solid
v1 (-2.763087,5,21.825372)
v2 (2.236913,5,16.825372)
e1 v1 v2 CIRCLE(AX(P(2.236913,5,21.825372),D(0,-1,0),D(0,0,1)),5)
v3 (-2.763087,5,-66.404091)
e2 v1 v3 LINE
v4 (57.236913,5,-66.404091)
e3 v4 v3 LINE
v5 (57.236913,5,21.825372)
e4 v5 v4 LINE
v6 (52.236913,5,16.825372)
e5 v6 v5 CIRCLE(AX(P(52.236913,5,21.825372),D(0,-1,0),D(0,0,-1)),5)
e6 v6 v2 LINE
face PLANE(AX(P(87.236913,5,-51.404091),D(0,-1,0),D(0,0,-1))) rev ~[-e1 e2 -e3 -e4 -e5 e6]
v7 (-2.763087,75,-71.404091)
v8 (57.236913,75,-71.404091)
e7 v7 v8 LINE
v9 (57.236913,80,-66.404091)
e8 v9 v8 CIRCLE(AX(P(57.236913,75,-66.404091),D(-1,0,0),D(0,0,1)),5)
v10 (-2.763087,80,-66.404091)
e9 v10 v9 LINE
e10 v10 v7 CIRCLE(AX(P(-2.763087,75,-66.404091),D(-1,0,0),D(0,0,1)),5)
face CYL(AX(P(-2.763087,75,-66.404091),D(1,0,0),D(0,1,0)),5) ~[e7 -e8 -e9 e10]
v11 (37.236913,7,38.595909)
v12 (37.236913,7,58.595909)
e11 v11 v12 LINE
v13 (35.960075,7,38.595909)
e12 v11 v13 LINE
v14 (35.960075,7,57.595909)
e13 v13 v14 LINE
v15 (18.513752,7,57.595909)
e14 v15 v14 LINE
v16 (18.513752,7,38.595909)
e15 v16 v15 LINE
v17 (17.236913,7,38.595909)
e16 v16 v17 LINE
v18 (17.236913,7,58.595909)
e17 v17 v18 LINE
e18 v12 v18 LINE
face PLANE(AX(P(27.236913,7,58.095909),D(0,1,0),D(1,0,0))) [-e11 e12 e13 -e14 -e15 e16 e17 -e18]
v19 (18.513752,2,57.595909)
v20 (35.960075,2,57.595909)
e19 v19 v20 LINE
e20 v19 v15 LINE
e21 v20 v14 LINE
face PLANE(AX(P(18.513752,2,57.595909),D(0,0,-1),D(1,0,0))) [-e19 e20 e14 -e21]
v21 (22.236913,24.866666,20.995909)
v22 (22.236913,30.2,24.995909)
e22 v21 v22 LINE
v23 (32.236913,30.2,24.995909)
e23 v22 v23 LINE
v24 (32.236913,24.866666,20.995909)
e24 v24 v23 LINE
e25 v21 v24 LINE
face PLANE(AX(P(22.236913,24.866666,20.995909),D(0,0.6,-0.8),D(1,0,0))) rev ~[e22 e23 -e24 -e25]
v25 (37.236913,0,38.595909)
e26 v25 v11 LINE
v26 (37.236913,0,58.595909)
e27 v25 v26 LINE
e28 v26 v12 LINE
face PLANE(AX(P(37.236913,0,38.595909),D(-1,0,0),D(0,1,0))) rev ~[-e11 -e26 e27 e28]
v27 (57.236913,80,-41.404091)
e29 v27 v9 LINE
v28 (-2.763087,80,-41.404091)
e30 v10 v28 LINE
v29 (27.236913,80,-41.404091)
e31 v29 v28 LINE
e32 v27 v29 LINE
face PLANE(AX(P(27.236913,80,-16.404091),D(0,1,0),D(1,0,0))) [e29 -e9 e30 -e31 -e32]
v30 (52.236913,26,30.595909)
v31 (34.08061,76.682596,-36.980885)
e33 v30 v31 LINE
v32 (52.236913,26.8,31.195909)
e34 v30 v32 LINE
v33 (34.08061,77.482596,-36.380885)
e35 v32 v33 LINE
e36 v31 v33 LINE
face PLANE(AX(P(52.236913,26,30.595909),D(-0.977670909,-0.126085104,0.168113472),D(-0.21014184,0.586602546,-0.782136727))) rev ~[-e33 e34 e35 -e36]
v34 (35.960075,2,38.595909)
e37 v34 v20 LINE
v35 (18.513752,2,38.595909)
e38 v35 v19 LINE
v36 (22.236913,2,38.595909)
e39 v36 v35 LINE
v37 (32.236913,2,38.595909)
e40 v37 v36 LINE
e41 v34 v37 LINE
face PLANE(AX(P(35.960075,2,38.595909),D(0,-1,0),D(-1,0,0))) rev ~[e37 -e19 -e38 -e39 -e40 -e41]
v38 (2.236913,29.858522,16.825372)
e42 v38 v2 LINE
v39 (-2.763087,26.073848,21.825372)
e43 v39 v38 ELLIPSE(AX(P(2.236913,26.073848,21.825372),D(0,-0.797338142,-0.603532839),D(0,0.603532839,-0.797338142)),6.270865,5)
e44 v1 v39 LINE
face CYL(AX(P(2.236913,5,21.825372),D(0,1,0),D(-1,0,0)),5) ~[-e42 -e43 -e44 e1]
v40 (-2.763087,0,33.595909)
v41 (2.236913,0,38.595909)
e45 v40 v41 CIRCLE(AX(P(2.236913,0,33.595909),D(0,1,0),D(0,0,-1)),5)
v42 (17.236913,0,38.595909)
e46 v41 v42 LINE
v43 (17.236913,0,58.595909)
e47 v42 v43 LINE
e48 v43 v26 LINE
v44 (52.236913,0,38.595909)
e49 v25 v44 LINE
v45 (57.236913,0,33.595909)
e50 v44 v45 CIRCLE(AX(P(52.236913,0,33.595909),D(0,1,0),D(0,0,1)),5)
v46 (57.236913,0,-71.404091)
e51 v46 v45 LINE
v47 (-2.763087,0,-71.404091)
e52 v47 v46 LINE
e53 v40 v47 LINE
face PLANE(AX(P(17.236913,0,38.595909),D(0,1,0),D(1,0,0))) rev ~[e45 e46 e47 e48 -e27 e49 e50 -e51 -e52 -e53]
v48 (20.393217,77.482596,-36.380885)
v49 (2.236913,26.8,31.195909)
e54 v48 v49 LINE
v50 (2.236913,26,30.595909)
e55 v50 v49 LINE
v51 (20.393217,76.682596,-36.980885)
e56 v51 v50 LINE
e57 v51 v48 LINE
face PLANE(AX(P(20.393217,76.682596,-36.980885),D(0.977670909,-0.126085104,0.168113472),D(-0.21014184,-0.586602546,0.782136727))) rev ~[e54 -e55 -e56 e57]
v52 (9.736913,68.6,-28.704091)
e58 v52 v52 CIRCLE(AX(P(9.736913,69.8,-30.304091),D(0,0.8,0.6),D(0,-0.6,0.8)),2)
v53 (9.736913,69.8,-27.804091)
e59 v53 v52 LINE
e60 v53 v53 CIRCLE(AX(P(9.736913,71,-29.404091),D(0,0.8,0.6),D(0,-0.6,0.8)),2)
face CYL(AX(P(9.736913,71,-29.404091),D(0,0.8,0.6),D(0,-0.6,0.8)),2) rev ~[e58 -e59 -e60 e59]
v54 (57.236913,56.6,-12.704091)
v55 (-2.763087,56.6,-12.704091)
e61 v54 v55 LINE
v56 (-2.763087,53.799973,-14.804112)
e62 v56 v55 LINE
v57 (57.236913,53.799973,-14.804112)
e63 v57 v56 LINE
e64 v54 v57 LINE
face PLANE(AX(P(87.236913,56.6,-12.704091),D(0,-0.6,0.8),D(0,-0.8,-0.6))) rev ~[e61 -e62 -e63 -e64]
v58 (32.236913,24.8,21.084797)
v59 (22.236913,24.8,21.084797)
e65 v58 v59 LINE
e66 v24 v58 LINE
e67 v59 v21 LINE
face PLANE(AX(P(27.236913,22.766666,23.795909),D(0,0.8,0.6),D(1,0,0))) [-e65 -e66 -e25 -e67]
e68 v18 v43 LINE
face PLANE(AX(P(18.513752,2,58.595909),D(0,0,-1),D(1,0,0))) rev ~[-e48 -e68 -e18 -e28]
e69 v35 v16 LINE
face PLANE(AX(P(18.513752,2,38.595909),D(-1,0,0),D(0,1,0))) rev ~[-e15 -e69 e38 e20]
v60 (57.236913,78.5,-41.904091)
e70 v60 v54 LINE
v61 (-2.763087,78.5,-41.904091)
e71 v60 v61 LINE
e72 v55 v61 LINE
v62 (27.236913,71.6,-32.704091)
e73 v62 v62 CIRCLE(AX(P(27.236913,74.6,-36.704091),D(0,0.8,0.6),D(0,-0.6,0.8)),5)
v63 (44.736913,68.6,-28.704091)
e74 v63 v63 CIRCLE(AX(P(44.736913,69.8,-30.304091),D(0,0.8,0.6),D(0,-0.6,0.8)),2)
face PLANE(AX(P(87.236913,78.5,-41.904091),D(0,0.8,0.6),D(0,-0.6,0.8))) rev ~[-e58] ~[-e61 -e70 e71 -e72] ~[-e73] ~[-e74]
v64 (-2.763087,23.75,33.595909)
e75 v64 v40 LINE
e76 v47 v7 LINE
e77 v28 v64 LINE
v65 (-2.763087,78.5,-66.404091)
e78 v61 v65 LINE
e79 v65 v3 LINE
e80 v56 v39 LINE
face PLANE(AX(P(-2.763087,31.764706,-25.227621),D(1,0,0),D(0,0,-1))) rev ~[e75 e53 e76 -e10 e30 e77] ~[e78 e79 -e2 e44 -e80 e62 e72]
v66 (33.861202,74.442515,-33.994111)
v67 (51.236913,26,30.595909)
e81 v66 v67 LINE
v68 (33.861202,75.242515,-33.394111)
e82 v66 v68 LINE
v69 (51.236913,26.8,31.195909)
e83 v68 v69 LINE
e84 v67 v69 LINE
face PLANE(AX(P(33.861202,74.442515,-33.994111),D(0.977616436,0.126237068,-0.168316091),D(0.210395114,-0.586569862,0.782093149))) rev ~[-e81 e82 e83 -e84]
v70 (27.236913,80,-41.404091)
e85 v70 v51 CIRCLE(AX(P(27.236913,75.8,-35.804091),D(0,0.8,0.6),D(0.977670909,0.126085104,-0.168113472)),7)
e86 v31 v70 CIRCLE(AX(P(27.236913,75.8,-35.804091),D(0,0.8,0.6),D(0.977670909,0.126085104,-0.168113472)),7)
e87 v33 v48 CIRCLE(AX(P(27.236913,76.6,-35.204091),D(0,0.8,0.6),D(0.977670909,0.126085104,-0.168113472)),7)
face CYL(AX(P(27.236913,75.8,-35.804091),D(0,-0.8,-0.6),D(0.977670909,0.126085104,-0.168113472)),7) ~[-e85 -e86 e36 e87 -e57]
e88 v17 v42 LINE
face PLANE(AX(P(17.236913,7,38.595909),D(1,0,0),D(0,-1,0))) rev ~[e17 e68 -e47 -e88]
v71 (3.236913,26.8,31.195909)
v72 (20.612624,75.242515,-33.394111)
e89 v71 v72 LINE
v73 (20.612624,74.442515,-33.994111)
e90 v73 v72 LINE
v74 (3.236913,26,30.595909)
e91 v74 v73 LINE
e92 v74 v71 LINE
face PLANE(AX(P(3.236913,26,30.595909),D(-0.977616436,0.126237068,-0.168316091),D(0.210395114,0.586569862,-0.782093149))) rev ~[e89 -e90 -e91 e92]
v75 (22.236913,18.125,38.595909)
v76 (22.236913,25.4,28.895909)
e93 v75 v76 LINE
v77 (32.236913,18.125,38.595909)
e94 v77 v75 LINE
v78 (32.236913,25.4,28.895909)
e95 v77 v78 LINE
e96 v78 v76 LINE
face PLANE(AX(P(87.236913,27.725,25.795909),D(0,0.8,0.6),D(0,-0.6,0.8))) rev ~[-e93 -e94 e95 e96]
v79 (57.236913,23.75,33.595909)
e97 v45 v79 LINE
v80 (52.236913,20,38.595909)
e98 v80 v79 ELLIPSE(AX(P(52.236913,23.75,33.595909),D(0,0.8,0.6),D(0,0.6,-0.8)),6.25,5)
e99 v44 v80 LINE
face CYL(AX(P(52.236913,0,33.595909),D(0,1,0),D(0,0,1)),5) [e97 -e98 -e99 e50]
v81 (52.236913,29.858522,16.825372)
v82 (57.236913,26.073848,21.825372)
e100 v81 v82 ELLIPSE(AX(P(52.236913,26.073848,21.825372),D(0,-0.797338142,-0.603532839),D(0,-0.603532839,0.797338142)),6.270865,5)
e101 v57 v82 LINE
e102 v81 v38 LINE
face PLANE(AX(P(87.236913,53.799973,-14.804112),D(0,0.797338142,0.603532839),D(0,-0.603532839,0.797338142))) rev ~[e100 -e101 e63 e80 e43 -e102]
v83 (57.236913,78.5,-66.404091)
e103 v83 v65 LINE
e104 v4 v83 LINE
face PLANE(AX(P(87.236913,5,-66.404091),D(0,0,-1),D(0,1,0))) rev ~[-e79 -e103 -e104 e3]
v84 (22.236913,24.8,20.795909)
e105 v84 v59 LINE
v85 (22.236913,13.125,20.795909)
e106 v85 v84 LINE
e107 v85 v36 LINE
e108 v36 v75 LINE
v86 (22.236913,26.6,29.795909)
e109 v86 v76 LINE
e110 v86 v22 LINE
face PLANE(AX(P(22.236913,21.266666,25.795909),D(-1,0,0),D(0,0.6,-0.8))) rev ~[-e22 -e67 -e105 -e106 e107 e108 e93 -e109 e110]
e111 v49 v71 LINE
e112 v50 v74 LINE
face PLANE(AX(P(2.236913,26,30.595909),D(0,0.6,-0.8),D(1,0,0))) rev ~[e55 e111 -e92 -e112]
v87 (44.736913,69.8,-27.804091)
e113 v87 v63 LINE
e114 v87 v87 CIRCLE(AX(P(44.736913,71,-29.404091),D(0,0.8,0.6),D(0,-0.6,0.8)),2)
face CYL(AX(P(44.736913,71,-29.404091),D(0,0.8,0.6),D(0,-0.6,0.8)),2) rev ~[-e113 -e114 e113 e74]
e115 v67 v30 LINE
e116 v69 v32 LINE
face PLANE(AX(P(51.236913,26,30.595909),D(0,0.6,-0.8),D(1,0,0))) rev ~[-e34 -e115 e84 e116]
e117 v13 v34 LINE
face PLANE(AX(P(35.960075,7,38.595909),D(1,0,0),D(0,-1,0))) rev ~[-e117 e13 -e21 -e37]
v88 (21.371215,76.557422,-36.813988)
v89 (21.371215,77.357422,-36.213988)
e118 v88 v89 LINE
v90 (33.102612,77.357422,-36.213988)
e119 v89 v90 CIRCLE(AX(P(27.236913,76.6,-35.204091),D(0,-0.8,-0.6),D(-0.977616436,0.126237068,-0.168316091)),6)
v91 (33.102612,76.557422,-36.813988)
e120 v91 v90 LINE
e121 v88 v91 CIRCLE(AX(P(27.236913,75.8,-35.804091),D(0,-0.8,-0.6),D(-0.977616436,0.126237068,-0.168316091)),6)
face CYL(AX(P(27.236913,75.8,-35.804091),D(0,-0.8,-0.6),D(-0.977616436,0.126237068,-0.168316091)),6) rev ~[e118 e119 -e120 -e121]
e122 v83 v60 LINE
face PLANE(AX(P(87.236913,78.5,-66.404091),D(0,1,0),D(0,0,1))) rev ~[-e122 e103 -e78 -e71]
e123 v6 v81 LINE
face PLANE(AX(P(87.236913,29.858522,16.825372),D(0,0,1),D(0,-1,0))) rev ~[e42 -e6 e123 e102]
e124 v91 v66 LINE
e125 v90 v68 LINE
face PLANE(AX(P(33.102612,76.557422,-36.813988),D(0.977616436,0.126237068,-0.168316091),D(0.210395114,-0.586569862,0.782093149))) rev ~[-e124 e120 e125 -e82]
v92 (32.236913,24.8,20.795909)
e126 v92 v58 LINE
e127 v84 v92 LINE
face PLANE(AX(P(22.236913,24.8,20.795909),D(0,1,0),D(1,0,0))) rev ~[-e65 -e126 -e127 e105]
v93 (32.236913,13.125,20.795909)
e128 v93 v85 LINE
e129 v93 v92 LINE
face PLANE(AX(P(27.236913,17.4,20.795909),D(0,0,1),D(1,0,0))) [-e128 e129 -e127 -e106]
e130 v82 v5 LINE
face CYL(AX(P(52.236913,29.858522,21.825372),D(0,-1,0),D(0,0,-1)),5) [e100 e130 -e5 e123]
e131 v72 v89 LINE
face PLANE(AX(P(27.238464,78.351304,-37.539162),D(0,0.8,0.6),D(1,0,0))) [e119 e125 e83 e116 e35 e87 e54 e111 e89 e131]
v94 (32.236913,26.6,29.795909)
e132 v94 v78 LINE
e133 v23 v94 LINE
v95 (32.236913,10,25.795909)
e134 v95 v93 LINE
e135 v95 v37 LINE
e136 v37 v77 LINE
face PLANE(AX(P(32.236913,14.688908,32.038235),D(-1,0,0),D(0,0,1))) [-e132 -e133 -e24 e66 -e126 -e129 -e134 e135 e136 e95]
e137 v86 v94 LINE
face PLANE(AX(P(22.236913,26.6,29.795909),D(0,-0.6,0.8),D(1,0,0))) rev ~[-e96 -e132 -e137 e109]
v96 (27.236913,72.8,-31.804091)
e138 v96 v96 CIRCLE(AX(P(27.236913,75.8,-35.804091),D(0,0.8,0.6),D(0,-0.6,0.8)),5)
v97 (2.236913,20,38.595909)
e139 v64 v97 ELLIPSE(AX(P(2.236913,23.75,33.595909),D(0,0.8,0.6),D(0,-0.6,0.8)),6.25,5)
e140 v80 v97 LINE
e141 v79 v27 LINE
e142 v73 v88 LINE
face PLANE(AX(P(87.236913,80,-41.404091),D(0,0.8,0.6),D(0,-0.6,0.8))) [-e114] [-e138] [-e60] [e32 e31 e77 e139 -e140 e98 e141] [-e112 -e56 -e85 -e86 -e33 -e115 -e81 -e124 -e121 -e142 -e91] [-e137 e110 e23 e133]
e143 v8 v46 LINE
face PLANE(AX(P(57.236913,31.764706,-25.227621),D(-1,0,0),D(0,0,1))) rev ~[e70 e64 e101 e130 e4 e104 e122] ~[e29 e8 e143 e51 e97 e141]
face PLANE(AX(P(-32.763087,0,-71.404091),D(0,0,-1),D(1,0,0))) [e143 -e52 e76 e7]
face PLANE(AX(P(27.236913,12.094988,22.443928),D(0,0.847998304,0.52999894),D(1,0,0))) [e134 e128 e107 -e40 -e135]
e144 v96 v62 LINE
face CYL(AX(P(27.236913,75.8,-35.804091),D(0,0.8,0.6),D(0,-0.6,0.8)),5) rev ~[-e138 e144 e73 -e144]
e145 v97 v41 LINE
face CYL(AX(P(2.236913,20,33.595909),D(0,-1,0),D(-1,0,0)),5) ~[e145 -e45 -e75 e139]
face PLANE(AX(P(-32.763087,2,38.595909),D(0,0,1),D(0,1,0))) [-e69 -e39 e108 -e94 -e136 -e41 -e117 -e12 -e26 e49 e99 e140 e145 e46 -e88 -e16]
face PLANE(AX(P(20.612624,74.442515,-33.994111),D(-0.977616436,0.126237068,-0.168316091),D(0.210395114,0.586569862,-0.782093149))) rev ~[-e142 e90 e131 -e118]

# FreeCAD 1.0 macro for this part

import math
import FreeCAD as App
import Part
import Sketcher

V = App.Vector
Q = App.Units.Quantity


def edges_at(feature, points):
    """Names of the edges that pass closest to the given points."""
    edges = feature.Shape.Edges
    near = lambda p: min(range(len(edges)), key=lambda i: edges[i].distToShape(Part.Vertex(*p))[0])
    return sorted({f"Edge{near(p) + 1}" for p in points})


def add_polygon(sketch, points):
    """Adds a closed chain of lines whose ends are joined by coincident constraints."""
    first, n = sketch.GeometryCount, len(points)
    for a, b in zip(points, points[1:] + points[:1]):
        sketch.addGeometry(Part.LineSegment(App.Vector(*a, 0), App.Vector(*b, 0)), False)
    for i in range(n):
        sketch.addConstraint(Sketcher.Constraint("Coincident", first + i, 2, first + (i + 1) % n, 1))

doc = App.newDocument("Part")
body = doc.addObject("PartDesign::Body", "Body")

sketch1 = doc.addObject("Sketcher::SketchObject", "Sketch")
body.addObject(sketch1)
sketch1.AttachmentSupport = (doc.XZ_Plane, [""])
sketch1.MapMode = "FlatFace"
add_polygon(sketch1, [(-33, -71), (-33, 39), (87, 39), (87, -71)])
sketch1.addConstraint([
    Sketcher.Constraint("Vertical", 0),
    Sketcher.Constraint("Horizontal", 1),
    Sketcher.Constraint("Vertical", 2),
    Sketcher.Constraint("Horizontal", 3),
    Sketcher.Constraint("DistanceX", 1, 1, 1, 2, Q("120 mm")),
    Sketcher.Constraint("DistanceY", 0, 1, 0, 2, Q("110 mm")),
    Sketcher.Constraint("DistanceY", -1, 1, 0, 2, Q("38.595909 mm")),
    Sketcher.Constraint("DistanceX", 0, 2, -1, 1, Q("32.763087 mm")),
])
pad1 = doc.addObject("PartDesign::Pad", "Pad")
body.addObject(pad1)
pad1.Profile = sketch1
pad1.Length = 80
pad1.Reversed = True

sketch2 = doc.addObject("Sketcher::SketchObject", "Sketch001")
body.addObject(sketch2)
sketch2.AttachmentSupport = (doc.YZ_Plane, [""])
sketch2.MapMode = "FlatFace"
sketch2.AttachmentOffset = App.Placement(V(0, 0, 87.236913), App.Rotation())
add_polygon(sketch2, [(80, -41), (80, 39), (20, 39)])
sketch2.addConstraint([
    Sketcher.Constraint("Vertical", 0),
    Sketcher.Constraint("Horizontal", 1),
    Sketcher.Constraint("DistanceX", 1, 2, 1, 1, Q("60 mm")),
    Sketcher.Constraint("DistanceY", 0, 1, 0, 2, Q("80 mm")),
    Sketcher.Constraint("DistanceX", -1, 1, 0, 2, Q("80 mm")),
    Sketcher.Constraint("DistanceY", -1, 1, 0, 2, Q("38.595909 mm")),
])
pocket1 = doc.addObject("PartDesign::Pocket", "Pocket")
body.addObject(pocket1)
pocket1.Profile = sketch2
pocket1.Type = "ThroughAll"

sketch3 = doc.addObject("Sketcher::SketchObject", "Sketch002")
body.addObject(sketch3)
sketch3.Placement = App.Placement(V(0, 31.326036, 23.494527), App.Rotation(V(1, 0, 0), V(0, 0.6, -0.8), V(0, 0.8, 0.6), "ZXY"))
sketch3.addGeometry(Part.Circle(V(9.7, 66.1, 0), V(0, 0, 1), 2), False)
sketch3.addGeometry(Part.ArcOfCircle(Part.Circle(V(27.2, 74.1, 0), V(0, 0, 1), 4.5), math.radians(0), math.radians(90)), False)
sketch3.addGeometry(Part.ArcOfCircle(Part.Circle(V(27.2, 74.1, 0), V(0, 0, 1), 4.5), math.radians(90), math.radians(270)), False)
sketch3.addGeometry(Part.ArcOfCircle(Part.Circle(V(27.2, 74.1, 0), V(0, 0, 1), 4.5), math.radians(-90), math.radians(0)), False)
sketch3.addGeometry(Part.Circle(V(44.7, 66.1, 0), V(0, 0, 1), 2), False)
add_polygon(sketch3, [(22.2, -2.9), (22.2, -7.9), (32.2, -7.9), (32.2, -2.9)])
sketch3.addConstraint([
    Sketcher.Constraint("Tangent", 1, 2, 2, 1),
    Sketcher.Constraint("Tangent", 2, 2, 3, 1),
    Sketcher.Constraint("Tangent", 3, 2, 1, 1),
    Sketcher.Constraint("Vertical", 5),
    Sketcher.Constraint("Horizontal", 6),
    Sketcher.Constraint("Vertical", 7),
    Sketcher.Constraint("Horizontal", 8),
    Sketcher.Constraint("Equal", 0, 4),
    Sketcher.Constraint("Horizontal", 0, 3, 4, 3),
    Sketcher.Constraint("Horizontal", 2, 3, 3, 2),
    Sketcher.Constraint("Vertical", 3, 3, 1, 2),
    Sketcher.Constraint("Vertical", 1, 2, 2, 2),
    Sketcher.Constraint("Diameter", 0, Q("4 mm")),
    Sketcher.Constraint("Radius", 1, Q("4.5 mm")),
    Sketcher.Constraint("DistanceX", 6, 1, 6, 2, Q("10 mm")),
    Sketcher.Constraint("DistanceY", 5, 2, 5, 1, Q("5 mm")),
    Sketcher.Constraint("DistanceY", 0, 3, 1, 3, Q("8 mm")),
    Sketcher.Constraint("DistanceX", 0, 3, 4, 3, Q("35 mm")),
    Sketcher.Constraint("DistanceY", 5, 2, 0, 3, Q("74 mm")),
    Sketcher.Constraint("DistanceX", 5, 2, 2, 2, Q("5 mm")),
    Sketcher.Constraint("DistanceX", 0, 3, 1, 3, Q("17.5 mm")),
    Sketcher.Constraint("DistanceX", -1, 1, 0, 3, Q("9.736913 mm")),
    Sketcher.Constraint("DistanceY", -1, 1, 0, 3, Q("66.123273 mm")),
])
pocket2 = doc.addObject("PartDesign::Pocket", "Pocket001")
body.addObject(pocket2)
pocket2.Profile = sketch3
pocket2.Length = 14

sketch4 = doc.addObject("Sketcher::SketchObject", "Sketch003")
body.addObject(sketch4)
sketch4.AttachmentSupport = (doc.YZ_Plane, [""])
sketch4.MapMode = "FlatFace"
sketch4.AttachmentOffset = App.Placement(V(0, 0, 87.236913), App.Rotation())
add_polygon(sketch4, [(78, -42), (57, -13), (5, -51), (5, -66), (78, -66)])
sketch4.addConstraint([
    Sketcher.Constraint("Vertical", 2),
    Sketcher.Constraint("Horizontal", 3),
    Sketcher.Constraint("Vertical", 4),
    Sketcher.Constraint("Perpendicular", 0, 1),
    Sketcher.Constraint("DistanceY", 2, 2, 2, 1, Q("15 mm")),
    Sketcher.Constraint("DistanceX", 3, 1, 3, 2, Q("73.5 mm")),
    Sketcher.Constraint("DistanceY", 4, 1, 4, 2, Q("24.5 mm")),
    Sketcher.Constraint("DistanceX", -1, 1, 1, 2, Q("5 mm")),
    Sketcher.Constraint("Distance", 0, Q("36.5 mm")),
    Sketcher.Constraint("DistanceY", 0, 2, -1, 1, Q("12.704091 mm")),
])
pocket3 = doc.addObject("PartDesign::Pocket", "Pocket002")
body.addObject(pocket3)
pocket3.Profile = sketch4
pocket3.Type = "ThroughAll"

sketch5 = doc.addObject("Sketcher::SketchObject", "Sketch004")
body.addObject(sketch5)
sketch5.AttachmentSupport = (doc.YZ_Plane, [""])
sketch5.MapMode = "FlatFace"
sketch5.AttachmentOffset = App.Placement(V(0, 0, 87.236913), App.Rotation())
add_polygon(sketch5, [(10, 26), (28, 26), (18, 39), (2, 39)])
sketch5.addConstraint([
    Sketcher.Constraint("Horizontal", 0),
    Sketcher.Constraint("Horizontal", 2),
    Sketcher.Constraint("Distance", 1, Q("16 mm")),
    Sketcher.Constraint("DistanceX", -1, 1, 2, 2, Q("2 mm")),
    Sketcher.Constraint("DistanceX", -1, 1, 3, 2, Q("10 mm")),
    Sketcher.Constraint("DistanceX", 1, 2, 0, 2, Q("9.6 mm")),
    Sketcher.Constraint("DistanceX", 0, 1, 0, 2, Q("17.725 mm")),
    Sketcher.Constraint("DistanceY", -1, 1, 0, 2, Q("25.795909 mm")),
])
pocket4 = doc.addObject("PartDesign::Pocket", "Pocket003")
body.addObject(pocket4)
pocket4.Profile = sketch5
pocket4.Length = 120

sketch6 = doc.addObject("Sketcher::SketchObject", "Sketch005")
body.addObject(sketch6)
sketch6.AttachmentSupport = (doc.YZ_Plane, [""])
sketch6.MapMode = "FlatFace"
sketch6.AttachmentOffset = App.Placement(V(0, 0, 87.236913), App.Rotation())
add_polygon(sketch6, [(28, 26), (18, 39), (2, 39), (10, 26)])
sketch6.addConstraint([
    Sketcher.Constraint("Horizontal", 1),
    Sketcher.Constraint("Horizontal", 3),
    Sketcher.Constraint("Distance", 0, Q("16 mm")),
    Sketcher.Constraint("DistanceX", -1, 1, 1, 2, Q("2 mm")),
    Sketcher.Constraint("DistanceX", -1, 1, 2, 2, Q("10 mm")),
    Sketcher.Constraint("DistanceY", 2, 2, 1, 2, Q("12.8 mm")),
    Sketcher.Constraint("DistanceX", 1, 2, 1, 1, Q("16.125 mm")),
    Sketcher.Constraint("DistanceY", -1, 1, 0, 2, Q("38.595909 mm")),
])
pad2 = doc.addObject("PartDesign::Pad", "Pad001")
body.addObject(pad2)
pad2.Profile = sketch6
pad2.Length = 55
pad2.Reversed = True

sketch7 = doc.addObject("Sketcher::SketchObject", "Sketch006")
body.addObject(sketch7)
sketch7.AttachmentSupport = (doc.YZ_Plane, [""])
sketch7.MapMode = "FlatFace"
sketch7.AttachmentOffset = App.Placement(V(0, 0, -32.763087), App.Rotation())
add_polygon(sketch7, [(18, 39), (28, 26), (10, 26), (2, 39)])
sketch7.addConstraint([
    Sketcher.Constraint("Horizontal", 1),
    Sketcher.Constraint("Horizontal", 3),
    Sketcher.Constraint("Distance", 0, Q("16 mm")),
    Sketcher.Constraint("DistanceX", -1, 1, 1, 2, Q("10 mm")),
    Sketcher.Constraint("DistanceX", -1, 1, 2, 2, Q("2 mm")),
    Sketcher.Constraint("DistanceY", 1, 2, 2, 2, Q("12.8 mm")),
    Sketcher.Constraint("DistanceX", 1, 2, 1, 1, Q("17.725 mm")),
    Sketcher.Constraint("DistanceY", -1, 1, 0, 2, Q("25.795909 mm")),
])
pad3 = doc.addObject("PartDesign::Pad", "Pad002")
body.addObject(pad3)
pad3.Profile = sketch7
pad3.Length = 55

sketch8 = doc.addObject("Sketcher::SketchObject", "Sketch007")
body.addObject(sketch8)
sketch8.Placement = App.Placement(V(0, 20.126036, 15.094527), App.Rotation(V(1, 0, 0), V(0, 0.6, -0.8), V(0, 0.8, 0.6), "ZXY"))
add_polygon(sketch8, [(22, -3), (22, -8), (32, -8), (32, -3)])
sketch8.addConstraint([
    Sketcher.Constraint("Vertical", 0),
    Sketcher.Constraint("Horizontal", 1),
    Sketcher.Constraint("Vertical", 2),
    Sketcher.Constraint("Horizontal", 3),
    Sketcher.Constraint("DistanceX", 1, 1, 1, 2, Q("10 mm")),
    Sketcher.Constraint("DistanceY", 0, 2, 0, 1, Q("5 mm")),
    Sketcher.Constraint("DistanceX", -1, 1, 0, 2, Q("22.236913 mm")),
    Sketcher.Constraint("DistanceY", 0, 2, -1, 1, Q("7.876727 mm")),
])
pad4 = doc.addObject("PartDesign::Pad", "Pad003")
body.addObject(pad4)
pad4.Profile = sketch8
pad4.Length = 7.333333

sketch9 = doc.addObject("Sketcher::SketchObject", "Sketch008")
body.addObject(sketch9)
sketch9.AttachmentSupport = (doc.YZ_Plane, [""])
sketch9.MapMode = "FlatFace"
sketch9.AttachmentOffset = App.Placement(V(0, 0, 87.236913), App.Rotation())
add_polygon(sketch9, [(5, -51), (54, -15), (30, 17), (5, 17)])
sketch9.addConstraint([
    Sketcher.Constraint("Horizontal", 2),
    Sketcher.Constraint("Vertical", 3),
    Sketcher.Constraint("DistanceX", -1, 1, 2, 2, Q("5 mm")),
    Sketcher.Constraint("DistanceX", 2, 2, 2, 1, Q("24.858522 mm")),
    Sketcher.Constraint("DistanceY", 3, 2, 3, 1, Q("68.229463 mm")),
    Sketcher.Constraint("DistanceY", 0, 2, -1, 1, Q("14.804112 mm")),
    Sketcher.Constraint("DistanceY", 3, 2, -1, 1, Q("51.404091 mm")),
    Sketcher.Constraint("DistanceX", 1, 2, 0, 2, Q("23.941451 mm")),
])
pocket5 = doc.addObject("PartDesign::Pocket", "Pocket004")
body.addObject(pocket5)
pocket5.Profile = sketch9
pocket5.Type = "ThroughAll"

sketch10 = doc.addObject("Sketcher::SketchObject", "Sketch009")
body.addObject(sketch10)
sketch10.AttachmentSupport = (doc.XY_Plane, [""])
sketch10.MapMode = "FlatFace"
sketch10.AttachmentOffset = App.Placement(V(0, 0, 38.595909), App.Rotation())
add_polygon(sketch10, [(17.2, 0), (37.2, 0), (37.2, 7), (36, 7), (36, 2), (18.5, 2), (18.5, 7), (17.2, 7)])
sketch10.addConstraint([
    Sketcher.Constraint("Horizontal", 0),
    Sketcher.Constraint("Vertical", 1),
    Sketcher.Constraint("Horizontal", 2),
    Sketcher.Constraint("Vertical", 3),
    Sketcher.Constraint("Horizontal", 4),
    Sketcher.Constraint("Vertical", 5),
    Sketcher.Constraint("Horizontal", 6),
    Sketcher.Constraint("Vertical", 7),
    Sketcher.Constraint("PointOnObject", 0, 2, -1),
    Sketcher.Constraint("Horizontal", 2, 2, 5, 2),
    Sketcher.Constraint("Equal", 2, 6),
    Sketcher.Constraint("DistanceX", 0, 1, 0, 2, Q("20 mm")),
    Sketcher.Constraint("DistanceY", 1, 1, 1, 2, Q("7 mm")),
    Sketcher.Constraint("DistanceY", 3, 2, 3, 1, Q("5 mm")),
    Sketcher.Constraint("DistanceX", 2, 2, 2, 1, Q("1.276839 mm")),
    Sketcher.Constraint("DistanceX", -1, 1, 0, 2, Q("37.236913 mm")),
])
pad5 = doc.addObject("PartDesign::Pad", "Pad004")
body.addObject(pad5)
pad5.Profile = sketch10
pad5.Length = 20

sketch11 = doc.addObject("Sketcher::SketchObject", "Sketch010")
body.addObject(sketch11)
sketch11.AttachmentSupport = (doc.XZ_Plane, [""])
sketch11.MapMode = "FlatFace"
sketch11.AttachmentOffset = App.Placement(V(0, 0, -2), App.Rotation())
add_polygon(sketch11, [(18.5, 57.6), (18.5, 58.6), (36, 58.6), (36, 57.6)])
sketch11.addConstraint([
    Sketcher.Constraint("Vertical", 0),
    Sketcher.Constraint("Horizontal", 1),
    Sketcher.Constraint("Vertical", 2),
    Sketcher.Constraint("Horizontal", 3),
    Sketcher.Constraint("DistanceY", 0, 1, 0, 2, Q("1 mm")),
    Sketcher.Constraint("DistanceX", 1, 1, 1, 2, Q("17.446323 mm")),
    Sketcher.Constraint("DistanceY", -1, 1, 0, 2, Q("58.595909 mm")),
    Sketcher.Constraint("DistanceX", -1, 1, 0, 2, Q("18.513752 mm")),
])
pad6 = doc.addObject("PartDesign::Pad", "Pad005")
body.addObject(pad6)
pad6.Profile = sketch11
pad6.Length = 5
pad6.Reversed = True

sketch12 = doc.addObject("Sketcher::SketchObject", "Sketch011")
body.addObject(sketch12)
sketch12.Placement = App.Placement(V(0, 31.326036, 23.494527), App.Rotation(V(1, 0, 0), V(0, 0.6, -0.8), V(0, 0.8, 0.6), "ZXY"))
sketch12.addGeometry([
    Part.LineSegment(V(20.6, 71.9, 0), V(21.4, 75.4, 0)),
    Part.ArcOfCircle(Part.Circle(V(27.2, 74.1, 0), V(0, 0, 1), 6), math.radians(12), math.radians(168)),
    Part.LineSegment(V(33.1, 75.4, 0), V(33.9, 71.9, 0)),
    Part.LineSegment(V(33.9, 71.9, 0), V(51.2, -8.9, 0)),
    Part.LineSegment(V(51.2, -8.9, 0), V(52.2, -8.9, 0)),
    Part.LineSegment(V(52.2, -8.9, 0), V(34.1, 75.6, 0)),
    Part.ArcOfCircle(Part.Circle(V(27.2, 74.1, 0), V(0, 0, 1), 7), math.radians(12), math.radians(168)),
    Part.LineSegment(V(20.4, 75.6, 0), V(2.2, -8.9, 0)),
    Part.LineSegment(V(2.2, -8.9, 0), V(3.2, -8.9, 0)),
    Part.LineSegment(V(3.2, -8.9, 0), V(20.6, 71.9, 0)),
], False)
sketch12.addConstraint([
    Sketcher.Constraint("Tangent", 0, 2, 1, 2),
    Sketcher.Constraint("Tangent", 1, 1, 2, 1),
    Sketcher.Constraint("Coincident", 2, 2, 3, 1),
    Sketcher.Constraint("Coincident", 3, 2, 4, 1),
    Sketcher.Constraint("Coincident", 4, 2, 5, 1),
    Sketcher.Constraint("Tangent", 5, 2, 6, 1),
    Sketcher.Constraint("Tangent", 6, 2, 7, 1),
    Sketcher.Constraint("Coincident", 7, 2, 8, 1),
    Sketcher.Constraint("Coincident", 8, 2, 9, 1),
    Sketcher.Constraint("Coincident", 9, 2, 0, 1),
    Sketcher.Constraint("Horizontal", 4),
    Sketcher.Constraint("Horizontal", 8),
    Sketcher.Constraint("Coincident", 6, 3, 1, 3),
    Sketcher.Constraint("Parallel", 2, 3),
    Sketcher.Constraint("Parallel", 0, 9),
    Sketcher.Constraint("Horizontal", 0, 2, 1, 1),
    Sketcher.Constraint("Horizontal", 5, 2, 6, 2),
    Sketcher.Constraint("Horizontal", 4, 2, 7, 2),
    Sketcher.Constraint("Horizontal", 2, 2, 9, 2),
    Sketcher.Constraint("Radius", 1, Q("6 mm")),
    Sketcher.Constraint("Radius", 6, Q("7 mm")),
    Sketcher.Constraint("DistanceX", 4, 1, 4, 2, Q("1 mm")),
    Sketcher.Constraint("DistanceX", 1, 3, 3, 2, Q("24 mm")),
    Sketcher.Constraint("DistanceY", 3, 2, 1, 3, Q("83 mm")),
    Sketcher.Constraint("Distance", 0, Q("3.605551 mm")),
    Sketcher.Constraint("DistanceX", -1, 1, 1, 1, Q("33.102612 mm")),
    Sketcher.Constraint("DistanceY", -1, 1, 1, 3, Q("74.123273 mm")),
])
pad7 = doc.addObject("PartDesign::Pad", "Pad006")
body.addObject(pad7)
pad7.Profile = sketch12
pad7.Length = 1

sketch13 = doc.addObject("Sketcher::SketchObject", "Sketch012")
body.addObject(sketch13)
sketch13.AttachmentSupport = (doc.YZ_Plane, [""])
sketch13.MapMode = "FlatFace"
sketch13.AttachmentOffset = App.Placement(V(0, 0, 87.236913), App.Rotation())
add_polygon(sketch13, [(20, 39), (0, 39), (0, -71), (80, -71), (80, -41)])
sketch13.addConstraint([
    Sketcher.Constraint("Horizontal", 0),
    Sketcher.Constraint("Vertical", 1),
    Sketcher.Constraint("Horizontal", 2),
    Sketcher.Constraint("Vertical", 3),
    Sketcher.Constraint("PointOnObject", 0, 2, -2),
    Sketcher.Constraint("DistanceX", 0, 2, 0, 1, Q("20 mm")),
    Sketcher.Constraint("DistanceX", 2, 1, 2, 2, Q("80 mm")),
    Sketcher.Constraint("DistanceY", 1, 2, 1, 1, Q("110 mm")),
    Sketcher.Constraint("DistanceY", 3, 1, 3, 2, Q("30 mm")),
    Sketcher.Constraint("DistanceY", -1, 1, 0, 2, Q("38.595909 mm")),
])
pocket6 = doc.addObject("PartDesign::Pocket", "Pocket005")
body.addObject(pocket6)
pocket6.Profile = sketch13
pocket6.Length = 30

sketch14 = doc.addObject("Sketcher::SketchObject", "Sketch013")
body.addObject(sketch14)
sketch14.AttachmentSupport = (doc.YZ_Plane, [""])
sketch14.MapMode = "FlatFace"
sketch14.AttachmentOffset = App.Placement(V(0, 0, -32.763087), App.Rotation())
add_polygon(sketch14, [(80, -41), (80, -71), (0, -71), (0, 39), (20, 39)])
sketch14.addConstraint([
    Sketcher.Constraint("Vertical", 0),
    Sketcher.Constraint("Horizontal", 1),
    Sketcher.Constraint("Vertical", 2),
    Sketcher.Constraint("Horizontal", 3),
    Sketcher.Constraint("PointOnObject", 1, 2, -2),
    Sketcher.Constraint("DistanceX", 1, 2, 1, 1, Q("80 mm")),
    Sketcher.Constraint("DistanceX", 3, 1, 3, 2, Q("20 mm")),
    Sketcher.Constraint("DistanceY", 0, 2, 0, 1, Q("30 mm")),
    Sketcher.Constraint("DistanceY", 2, 1, 2, 2, Q("110 mm")),
    Sketcher.Constraint("DistanceY", 0, 2, -1, 1, Q("71.404091 mm")),
])
pocket7 = doc.addObject("PartDesign::Pocket", "Pocket006")
body.addObject(pocket7)
pocket7.Profile = sketch14
pocket7.Length = 30
pocket7.Reversed = True
doc.recompute()

fillet = doc.addObject("PartDesign::Fillet", "Fillet")
body.addObject(fillet)
fillet.Base = (pocket7, edges_at(pocket7, [(27.237, 80, -71.404)]))
fillet.Radius = 5
doc.recompute()

fillet2 = doc.addObject("PartDesign::Fillet", "Fillet001")
body.addObject(fillet2)
fillet2.Base = (fillet, edges_at(fillet, [(57.237, 10, 38.596), (-2.763, 10, 38.596)]))
fillet2.Radius = 5
doc.recompute()

fillet3 = doc.addObject("PartDesign::Fillet", "Fillet002")
body.addObject(fillet3)
fillet3.Base = (fillet2, edges_at(fillet2, [(57.237, 17.429, 16.825), (-2.763, 17.429, 16.825)]))
fillet3.Radius = 5

sketch15 = doc.addObject("Sketcher::SketchObject", "Sketch014")
body.addObject(sketch15)
sketch15.Placement = App.Placement(V(0, 31.326036, 23.494527), App.Rotation(V(1, 0, 0), V(0, 0.6, -0.8), V(0, 0.8, 0.6), "ZXY"))
sketch15.addGeometry(Part.Circle(V(27, 74, 0), V(0, 0, 1), 5), False)
sketch15.addConstraint([
    Sketcher.Constraint("Diameter", 0, Q("10 mm")),
    Sketcher.Constraint("DistanceX", -1, 1, 0, 3, Q("27.236913 mm")),
    Sketcher.Constraint("DistanceY", -1, 1, 0, 3, Q("74.123273 mm")),
])
pocket8 = doc.addObject("PartDesign::Pocket", "Pocket007")
body.addObject(pocket8)
pocket8.Profile = sketch15
pocket8.Type = "UpToFirst"

sketch16 = doc.addObject("Sketcher::SketchObject", "Sketch015")
body.addObject(sketch16)
sketch16.Placement = App.Placement(V(0, 25.992703, 19.494527), App.Rotation(V(1, 0, 0), V(0, 0.6, -0.8), V(0, 0.8, 0.6), "ZXY"))
add_polygon(sketch16, [(22, -2), (22, -8), (32, -8), (32, -2)])
sketch16.addConstraint([
    Sketcher.Constraint("Vertical", 0),
    Sketcher.Constraint("Horizontal", 1),
    Sketcher.Constraint("Vertical", 2),
    Sketcher.Constraint("Horizontal", 3),
    Sketcher.Constraint("DistanceX", 1, 1, 1, 2, Q("10 mm")),
    Sketcher.Constraint("DistanceY", 0, 2, 0, 1, Q("6 mm")),
    Sketcher.Constraint("DistanceX", -1, 1, 0, 2, Q("22.236913 mm")),
    Sketcher.Constraint("DistanceY", 0, 2, -1, 1, Q("7.876727 mm")),
])
pocket9 = doc.addObject("PartDesign::Pocket", "Pocket008")
body.addObject(pocket9)
pocket9.Profile = sketch16
pocket9.Length = 6.666667
pocket9.Reversed = True

sketch17 = doc.addObject("Sketcher::SketchObject", "Sketch016")
body.addObject(sketch17)
sketch17.AttachmentSupport = (doc.XY_Plane, [""])
sketch17.MapMode = "FlatFace"
sketch17.AttachmentOffset = App.Placement(V(0, 0, 25.795909), App.Rotation())
add_polygon(sketch17, [(22, 24), (22, 10), (32, 10), (32, 24)])
sketch17.addConstraint([
    Sketcher.Constraint("Vertical", 0),
    Sketcher.Constraint("Horizontal", 1),
    Sketcher.Constraint("Vertical", 2),
    Sketcher.Constraint("Horizontal", 3),
    Sketcher.Constraint("DistanceX", 1, 1, 1, 2, Q("10 mm")),
    Sketcher.Constraint("DistanceY", 0, 2, 0, 1, Q("14 mm")),
    Sketcher.Constraint("DistanceY", -1, 1, 0, 2, Q("10 mm")),
    Sketcher.Constraint("DistanceX", -1, 1, 0, 2, Q("22.236913 mm")),
])
pocket10 = doc.addObject("PartDesign::Pocket", "Pocket009")
body.addObject(pocket10)
pocket10.Profile = sketch17
pocket10.Length = 4

sketch18 = doc.addObject("Sketcher::SketchObject", "Sketch017")
body.addObject(sketch18)
sketch18.AttachmentSupport = (doc.XY_Plane, [""])
sketch18.MapMode = "FlatFace"
sketch18.AttachmentOffset = App.Placement(V(0, 0, 21.795909), App.Rotation())
add_polygon(sketch18, [(22, 25), (22, 10), (32, 10), (32, 25)])
sketch18.addConstraint([
    Sketcher.Constraint("Vertical", 0),
    Sketcher.Constraint("Horizontal", 1),
    Sketcher.Constraint("Vertical", 2),
    Sketcher.Constraint("Horizontal", 3),
    Sketcher.Constraint("DistanceX", 1, 1, 1, 2, Q("10 mm")),
    Sketcher.Constraint("DistanceY", 0, 2, 0, 1, Q("14.8 mm")),
    Sketcher.Constraint("DistanceY", -1, 1, 0, 2, Q("10 mm")),
    Sketcher.Constraint("DistanceX", -1, 1, 0, 2, Q("22.236913 mm")),
])
pocket11 = doc.addObject("PartDesign::Pocket", "Pocket010")
body.addObject(pocket11)
pocket11.Profile = sketch18
pocket11.Type = "TwoLengths"
pocket11.Length = 2
pocket11.Length2 = 1
pocket11.Reversed = True

sketch19 = doc.addObject("Sketcher::SketchObject", "Sketch018")
body.addObject(sketch19)
sketch19.Placement = App.Placement(V(0, 18.784678, 11.740424), App.Rotation(V(1, 0, 0), V(0, 0.52999894, -0.847998304), V(0, 0.847998304, 0.52999894), "ZXY"))
add_polygon(sketch19, [(22, -9), (22, -17), (32, -17), (32, -9)])
sketch19.addConstraint([
    Sketcher.Constraint("Vertical", 0),
    Sketcher.Constraint("Horizontal", 1),
    Sketcher.Constraint("Vertical", 2),
    Sketcher.Constraint("Horizontal", 3),
    Sketcher.Constraint("DistanceX", 1, 1, 1, 2, Q("10 mm")),
    Sketcher.Constraint("DistanceY", 0, 2, 0, 1, Q("7.90563 mm")),
    Sketcher.Constraint("DistanceX", -1, 1, 0, 2, Q("22.236913 mm")),
    Sketcher.Constraint("DistanceY", 0, 2, -1, 1, Q("16.574898 mm")),
])
pad8 = doc.addObject("PartDesign::Pad", "Pad007")
body.addObject(pad8)
pad8.Profile = sketch19
pad8.Length = 5
pad8.Reversed = True

sketch20 = doc.addObject("Sketcher::SketchObject", "Sketch019")
body.addObject(sketch20)
sketch20.AttachmentSupport = (doc.YZ_Plane, [""])
sketch20.MapMode = "FlatFace"
sketch20.AttachmentOffset = App.Placement(V(0, 0, 32.236913), App.Rotation())
add_polygon(sketch20, [(9.95, 16.44), (10.56, 16.83), (9.71, 16.83)])
sketch20.addConstraint([
    Sketcher.Constraint("Horizontal", 1),
    Sketcher.Constraint("Perpendicular", 0, 2),
    Sketcher.Constraint("DistanceX", 1, 2, 1, 1, Q("0.853107 mm")),
    Sketcher.Constraint("DistanceY", 2, 2, 1, 2, Q("0.383419 mm")),
    Sketcher.Constraint("DistanceX", -1, 1, 0, 2, Q("10.563454 mm")),
    Sketcher.Constraint("DistanceY", -1, 1, 0, 2, Q("16.825372 mm")),
])
pocket12 = doc.addObject("PartDesign::Pocket", "Pocket011")
body.addObject(pocket12)
pocket12.Profile = sketch20
pocket12.Type = "ThroughAll"
pocket12.Midplane = True

doc.recompute()
